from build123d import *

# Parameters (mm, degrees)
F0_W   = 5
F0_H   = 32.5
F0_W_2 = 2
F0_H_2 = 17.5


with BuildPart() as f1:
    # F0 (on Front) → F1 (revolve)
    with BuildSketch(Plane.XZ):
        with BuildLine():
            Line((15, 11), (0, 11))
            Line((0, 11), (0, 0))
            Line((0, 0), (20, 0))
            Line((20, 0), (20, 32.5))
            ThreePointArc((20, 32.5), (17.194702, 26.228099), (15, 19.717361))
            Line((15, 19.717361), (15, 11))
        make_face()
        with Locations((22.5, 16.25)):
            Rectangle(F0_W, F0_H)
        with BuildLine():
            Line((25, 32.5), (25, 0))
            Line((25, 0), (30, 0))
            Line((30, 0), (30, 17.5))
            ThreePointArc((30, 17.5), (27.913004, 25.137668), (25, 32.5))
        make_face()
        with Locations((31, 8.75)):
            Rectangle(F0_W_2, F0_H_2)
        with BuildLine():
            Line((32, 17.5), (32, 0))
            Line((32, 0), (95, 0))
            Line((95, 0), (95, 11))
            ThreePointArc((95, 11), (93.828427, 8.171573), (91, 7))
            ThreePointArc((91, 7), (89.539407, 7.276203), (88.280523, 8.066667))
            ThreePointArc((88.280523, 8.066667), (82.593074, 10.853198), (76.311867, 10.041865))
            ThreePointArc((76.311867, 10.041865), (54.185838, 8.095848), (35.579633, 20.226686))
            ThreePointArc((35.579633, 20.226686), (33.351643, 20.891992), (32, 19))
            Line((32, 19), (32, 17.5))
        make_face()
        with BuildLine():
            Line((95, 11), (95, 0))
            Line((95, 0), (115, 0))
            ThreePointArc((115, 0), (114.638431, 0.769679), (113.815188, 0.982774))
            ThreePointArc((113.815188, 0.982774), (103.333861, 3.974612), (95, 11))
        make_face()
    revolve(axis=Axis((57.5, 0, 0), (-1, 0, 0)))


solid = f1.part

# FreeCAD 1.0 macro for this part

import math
import FreeCAD as App
import Part
import Sketcher
from FreeCAD import Vector

doc = App.newDocument("Part")
body = doc.addObject("PartDesign::Body", "Body")

# Sketch on XZ plane
sketch1 = body.newObject("Sketcher::SketchObject", "Sketch")
sketch1.AttachmentSupport = (doc.getObject("XZ_Plane"), [""])
sketch1.MapMode = "FlatFace"
sketch1.addGeometry([
    Part.LineSegment(Vector(15, 11, 0), Vector(0, 11, 0)),  # 0
    Part.LineSegment(Vector(0, 11, 0), Vector(0, 0, 0)),  # 1
    Part.LineSegment(Vector(0, 0, 0), Vector(115, 0, 0)),  # 2
    Part.ArcOfCircle(Part.Circle(Vector(114, 0, 0), Vector(0, 0, 1), 1), math.radians(0), math.radians(101)),  # 3
    Part.ArcOfCircle(Part.Circle(Vector(115.6, 26.9, 0), Vector(0, 0, 1), 26), math.radians(-142), math.radians(-94)),  # 4
    Part.ArcOfCircle(Part.Circle(Vector(91, 11, 0), Vector(0, 0, 1), 4), math.radians(-90), math.radians(0)),  # 5
    Part.ArcOfCircle(Part.Circle(Vector(91, 11, 0), Vector(0, 0, 1), 4), math.radians(-133), math.radians(-90)),  # 6
    Part.ArcOfCircle(Part.Circle(Vector(80.8, 0, 0), Vector(0, 0, 1), 11), math.radians(47), math.radians(114)),  # 7
    Part.ArcOfCircle(Part.Circle(Vector(62.4, 41.1, 0), Vector(0, 0, 1), 34), math.radians(-142), math.radians(-66)),  # 8
    Part.ArcOfCircle(Part.Circle(Vector(34, 19, 0), Vector(0, 0, 1), 2), math.radians(38), math.radians(180)),  # 9
    Part.LineSegment(Vector(32, 19, 0), Vector(32, 17.5, 0)),  # 10
    Part.LineSegment(Vector(32, 17.5, 0), Vector(30, 17.5, 0)),  # 11
    Part.ArcOfCircle(Part.Circle(Vector(-40.4, 2.4, 0), Vector(0, 0, 1), 72), math.radians(12.13), math.radians(24.74)),  # 12
    Part.LineSegment(Vector(25, 32.5, 0), Vector(20, 32.5, 0)),  # 13
    Part.ArcOfCircle(Part.Circle(Vector(84.2, 0, 0), Vector(0, 0, 1), 72), math.radians(153.17), math.radians(164.11)),  # 14
    Part.LineSegment(Vector(15, 19.7, 0), Vector(15, 11, 0)),  # 15
], False)
sketch1.addConstraint([
    Sketcher.Constraint("Coincident", 0, 2, 1, 1),
    Sketcher.Constraint("Coincident", 1, 2, 2, 1),
    Sketcher.Constraint("Coincident", 2, 2, 3, 1),
    Sketcher.Constraint("Coincident", 3, 2, 4, 2),
    Sketcher.Constraint("Coincident", 4, 1, 5, 2),
    Sketcher.Constraint("Tangent", 5, 1, 6, 2),
    Sketcher.Constraint("Tangent", 6, 1, 7, 1),
    Sketcher.Constraint("Tangent", 7, 2, 8, 2),
    Sketcher.Constraint("Tangent", 8, 1, 9, 1),
    Sketcher.Constraint("Tangent", 9, 2, 10, 1),
    Sketcher.Constraint("Coincident", 10, 2, 11, 1),
    Sketcher.Constraint("Coincident", 11, 2, 12, 1),
    Sketcher.Constraint("Coincident", 12, 2, 13, 1),
    Sketcher.Constraint("Coincident", 13, 2, 14, 1),
    Sketcher.Constraint("Coincident", 14, 2, 15, 1),
    Sketcher.Constraint("Coincident", 15, 2, 0, 1),
    Sketcher.Constraint("Horizontal", 0),
    Sketcher.Constraint("Vertical", 1),
    Sketcher.Constraint("Horizontal", 2),
    Sketcher.Constraint("Vertical", 10),
    Sketcher.Constraint("Horizontal", 11),
    Sketcher.Constraint("Horizontal", 13),
    Sketcher.Constraint("Vertical", 15),
    Sketcher.Constraint("Coincident", 1, 2, -1, 1),
    Sketcher.Constraint("PointOnObject", 3, 3, -1),
    Sketcher.Constraint("Horizontal", 5, 3, 0, 2),
    Sketcher.Constraint("Horizontal", 0, 2, 4, 1),
    Sketcher.Constraint("Radius", 3, 1.0),
    Sketcher.Constraint("Radius", 5, 4.0),
    Sketcher.Constraint("Radius", 8, 34.000002),
    Sketcher.Constraint("Radius", 9, 2.0),
    Sketcher.Constraint("DistanceX", 0, 2, 0, 1, 15.0),
    Sketcher.Constraint("DistanceX", 2, 1, 2, 2, 115.0),
    Sketcher.Constraint("DistanceX", 11, 2, 11, 1, 2.0),
    Sketcher.Constraint("DistanceX", 13, 2, 13, 1, 5.0),
    Sketcher.Constraint("DistanceY", 1, 2, 1, 1, 11.0),
    Sketcher.Constraint("DistanceY", 10, 2, 10, 1, 1.5),
    Sketcher.Constraint("DistanceX", -1, 1, 5, 3, 91.0),
    Sketcher.Constraint("DistanceX", -1, 1, 9, 3, 34.0),
    Sketcher.Constraint("DistanceY", -1, 1, 9, 3, 19.0),
    Sketcher.Constraint("DistanceX", -1, 1, 5, 1, 91.0),
    Sketcher.Constraint("DistanceX", -1, 1, 12, 2, 25.0),
    Sketcher.Constraint("DistanceY", 11, 2, 12, 2, 15.0),
    Sketcher.Constraint("Radius", 14, 71.99997),
    Sketcher.Constraint("Radius", 4, 26.000005),
    Sketcher.Constraint("Radius", 6, 4.000005),
    Sketcher.Constraint("Radius", 7, 11.000002),
    Sketcher.Constraint("Radius", 12, 71.999914),
    Sketcher.Constraint("DistanceY", 15, 2, 15, 1, 8.717361),
    Sketcher.Constraint("DistanceY", 7, 3, 12, 3, 2.369298),
    Sketcher.Constraint("DistanceY", -1, 1, 4, 3, 26.924671),
])
revolution = body.newObject("PartDesign::Revolution", "Revolution")
revolution.Profile = sketch1
revolution.ReferenceAxis = (sketch1, ["H_Axis"])
revolution.Angle = 360

doc.recompute()
